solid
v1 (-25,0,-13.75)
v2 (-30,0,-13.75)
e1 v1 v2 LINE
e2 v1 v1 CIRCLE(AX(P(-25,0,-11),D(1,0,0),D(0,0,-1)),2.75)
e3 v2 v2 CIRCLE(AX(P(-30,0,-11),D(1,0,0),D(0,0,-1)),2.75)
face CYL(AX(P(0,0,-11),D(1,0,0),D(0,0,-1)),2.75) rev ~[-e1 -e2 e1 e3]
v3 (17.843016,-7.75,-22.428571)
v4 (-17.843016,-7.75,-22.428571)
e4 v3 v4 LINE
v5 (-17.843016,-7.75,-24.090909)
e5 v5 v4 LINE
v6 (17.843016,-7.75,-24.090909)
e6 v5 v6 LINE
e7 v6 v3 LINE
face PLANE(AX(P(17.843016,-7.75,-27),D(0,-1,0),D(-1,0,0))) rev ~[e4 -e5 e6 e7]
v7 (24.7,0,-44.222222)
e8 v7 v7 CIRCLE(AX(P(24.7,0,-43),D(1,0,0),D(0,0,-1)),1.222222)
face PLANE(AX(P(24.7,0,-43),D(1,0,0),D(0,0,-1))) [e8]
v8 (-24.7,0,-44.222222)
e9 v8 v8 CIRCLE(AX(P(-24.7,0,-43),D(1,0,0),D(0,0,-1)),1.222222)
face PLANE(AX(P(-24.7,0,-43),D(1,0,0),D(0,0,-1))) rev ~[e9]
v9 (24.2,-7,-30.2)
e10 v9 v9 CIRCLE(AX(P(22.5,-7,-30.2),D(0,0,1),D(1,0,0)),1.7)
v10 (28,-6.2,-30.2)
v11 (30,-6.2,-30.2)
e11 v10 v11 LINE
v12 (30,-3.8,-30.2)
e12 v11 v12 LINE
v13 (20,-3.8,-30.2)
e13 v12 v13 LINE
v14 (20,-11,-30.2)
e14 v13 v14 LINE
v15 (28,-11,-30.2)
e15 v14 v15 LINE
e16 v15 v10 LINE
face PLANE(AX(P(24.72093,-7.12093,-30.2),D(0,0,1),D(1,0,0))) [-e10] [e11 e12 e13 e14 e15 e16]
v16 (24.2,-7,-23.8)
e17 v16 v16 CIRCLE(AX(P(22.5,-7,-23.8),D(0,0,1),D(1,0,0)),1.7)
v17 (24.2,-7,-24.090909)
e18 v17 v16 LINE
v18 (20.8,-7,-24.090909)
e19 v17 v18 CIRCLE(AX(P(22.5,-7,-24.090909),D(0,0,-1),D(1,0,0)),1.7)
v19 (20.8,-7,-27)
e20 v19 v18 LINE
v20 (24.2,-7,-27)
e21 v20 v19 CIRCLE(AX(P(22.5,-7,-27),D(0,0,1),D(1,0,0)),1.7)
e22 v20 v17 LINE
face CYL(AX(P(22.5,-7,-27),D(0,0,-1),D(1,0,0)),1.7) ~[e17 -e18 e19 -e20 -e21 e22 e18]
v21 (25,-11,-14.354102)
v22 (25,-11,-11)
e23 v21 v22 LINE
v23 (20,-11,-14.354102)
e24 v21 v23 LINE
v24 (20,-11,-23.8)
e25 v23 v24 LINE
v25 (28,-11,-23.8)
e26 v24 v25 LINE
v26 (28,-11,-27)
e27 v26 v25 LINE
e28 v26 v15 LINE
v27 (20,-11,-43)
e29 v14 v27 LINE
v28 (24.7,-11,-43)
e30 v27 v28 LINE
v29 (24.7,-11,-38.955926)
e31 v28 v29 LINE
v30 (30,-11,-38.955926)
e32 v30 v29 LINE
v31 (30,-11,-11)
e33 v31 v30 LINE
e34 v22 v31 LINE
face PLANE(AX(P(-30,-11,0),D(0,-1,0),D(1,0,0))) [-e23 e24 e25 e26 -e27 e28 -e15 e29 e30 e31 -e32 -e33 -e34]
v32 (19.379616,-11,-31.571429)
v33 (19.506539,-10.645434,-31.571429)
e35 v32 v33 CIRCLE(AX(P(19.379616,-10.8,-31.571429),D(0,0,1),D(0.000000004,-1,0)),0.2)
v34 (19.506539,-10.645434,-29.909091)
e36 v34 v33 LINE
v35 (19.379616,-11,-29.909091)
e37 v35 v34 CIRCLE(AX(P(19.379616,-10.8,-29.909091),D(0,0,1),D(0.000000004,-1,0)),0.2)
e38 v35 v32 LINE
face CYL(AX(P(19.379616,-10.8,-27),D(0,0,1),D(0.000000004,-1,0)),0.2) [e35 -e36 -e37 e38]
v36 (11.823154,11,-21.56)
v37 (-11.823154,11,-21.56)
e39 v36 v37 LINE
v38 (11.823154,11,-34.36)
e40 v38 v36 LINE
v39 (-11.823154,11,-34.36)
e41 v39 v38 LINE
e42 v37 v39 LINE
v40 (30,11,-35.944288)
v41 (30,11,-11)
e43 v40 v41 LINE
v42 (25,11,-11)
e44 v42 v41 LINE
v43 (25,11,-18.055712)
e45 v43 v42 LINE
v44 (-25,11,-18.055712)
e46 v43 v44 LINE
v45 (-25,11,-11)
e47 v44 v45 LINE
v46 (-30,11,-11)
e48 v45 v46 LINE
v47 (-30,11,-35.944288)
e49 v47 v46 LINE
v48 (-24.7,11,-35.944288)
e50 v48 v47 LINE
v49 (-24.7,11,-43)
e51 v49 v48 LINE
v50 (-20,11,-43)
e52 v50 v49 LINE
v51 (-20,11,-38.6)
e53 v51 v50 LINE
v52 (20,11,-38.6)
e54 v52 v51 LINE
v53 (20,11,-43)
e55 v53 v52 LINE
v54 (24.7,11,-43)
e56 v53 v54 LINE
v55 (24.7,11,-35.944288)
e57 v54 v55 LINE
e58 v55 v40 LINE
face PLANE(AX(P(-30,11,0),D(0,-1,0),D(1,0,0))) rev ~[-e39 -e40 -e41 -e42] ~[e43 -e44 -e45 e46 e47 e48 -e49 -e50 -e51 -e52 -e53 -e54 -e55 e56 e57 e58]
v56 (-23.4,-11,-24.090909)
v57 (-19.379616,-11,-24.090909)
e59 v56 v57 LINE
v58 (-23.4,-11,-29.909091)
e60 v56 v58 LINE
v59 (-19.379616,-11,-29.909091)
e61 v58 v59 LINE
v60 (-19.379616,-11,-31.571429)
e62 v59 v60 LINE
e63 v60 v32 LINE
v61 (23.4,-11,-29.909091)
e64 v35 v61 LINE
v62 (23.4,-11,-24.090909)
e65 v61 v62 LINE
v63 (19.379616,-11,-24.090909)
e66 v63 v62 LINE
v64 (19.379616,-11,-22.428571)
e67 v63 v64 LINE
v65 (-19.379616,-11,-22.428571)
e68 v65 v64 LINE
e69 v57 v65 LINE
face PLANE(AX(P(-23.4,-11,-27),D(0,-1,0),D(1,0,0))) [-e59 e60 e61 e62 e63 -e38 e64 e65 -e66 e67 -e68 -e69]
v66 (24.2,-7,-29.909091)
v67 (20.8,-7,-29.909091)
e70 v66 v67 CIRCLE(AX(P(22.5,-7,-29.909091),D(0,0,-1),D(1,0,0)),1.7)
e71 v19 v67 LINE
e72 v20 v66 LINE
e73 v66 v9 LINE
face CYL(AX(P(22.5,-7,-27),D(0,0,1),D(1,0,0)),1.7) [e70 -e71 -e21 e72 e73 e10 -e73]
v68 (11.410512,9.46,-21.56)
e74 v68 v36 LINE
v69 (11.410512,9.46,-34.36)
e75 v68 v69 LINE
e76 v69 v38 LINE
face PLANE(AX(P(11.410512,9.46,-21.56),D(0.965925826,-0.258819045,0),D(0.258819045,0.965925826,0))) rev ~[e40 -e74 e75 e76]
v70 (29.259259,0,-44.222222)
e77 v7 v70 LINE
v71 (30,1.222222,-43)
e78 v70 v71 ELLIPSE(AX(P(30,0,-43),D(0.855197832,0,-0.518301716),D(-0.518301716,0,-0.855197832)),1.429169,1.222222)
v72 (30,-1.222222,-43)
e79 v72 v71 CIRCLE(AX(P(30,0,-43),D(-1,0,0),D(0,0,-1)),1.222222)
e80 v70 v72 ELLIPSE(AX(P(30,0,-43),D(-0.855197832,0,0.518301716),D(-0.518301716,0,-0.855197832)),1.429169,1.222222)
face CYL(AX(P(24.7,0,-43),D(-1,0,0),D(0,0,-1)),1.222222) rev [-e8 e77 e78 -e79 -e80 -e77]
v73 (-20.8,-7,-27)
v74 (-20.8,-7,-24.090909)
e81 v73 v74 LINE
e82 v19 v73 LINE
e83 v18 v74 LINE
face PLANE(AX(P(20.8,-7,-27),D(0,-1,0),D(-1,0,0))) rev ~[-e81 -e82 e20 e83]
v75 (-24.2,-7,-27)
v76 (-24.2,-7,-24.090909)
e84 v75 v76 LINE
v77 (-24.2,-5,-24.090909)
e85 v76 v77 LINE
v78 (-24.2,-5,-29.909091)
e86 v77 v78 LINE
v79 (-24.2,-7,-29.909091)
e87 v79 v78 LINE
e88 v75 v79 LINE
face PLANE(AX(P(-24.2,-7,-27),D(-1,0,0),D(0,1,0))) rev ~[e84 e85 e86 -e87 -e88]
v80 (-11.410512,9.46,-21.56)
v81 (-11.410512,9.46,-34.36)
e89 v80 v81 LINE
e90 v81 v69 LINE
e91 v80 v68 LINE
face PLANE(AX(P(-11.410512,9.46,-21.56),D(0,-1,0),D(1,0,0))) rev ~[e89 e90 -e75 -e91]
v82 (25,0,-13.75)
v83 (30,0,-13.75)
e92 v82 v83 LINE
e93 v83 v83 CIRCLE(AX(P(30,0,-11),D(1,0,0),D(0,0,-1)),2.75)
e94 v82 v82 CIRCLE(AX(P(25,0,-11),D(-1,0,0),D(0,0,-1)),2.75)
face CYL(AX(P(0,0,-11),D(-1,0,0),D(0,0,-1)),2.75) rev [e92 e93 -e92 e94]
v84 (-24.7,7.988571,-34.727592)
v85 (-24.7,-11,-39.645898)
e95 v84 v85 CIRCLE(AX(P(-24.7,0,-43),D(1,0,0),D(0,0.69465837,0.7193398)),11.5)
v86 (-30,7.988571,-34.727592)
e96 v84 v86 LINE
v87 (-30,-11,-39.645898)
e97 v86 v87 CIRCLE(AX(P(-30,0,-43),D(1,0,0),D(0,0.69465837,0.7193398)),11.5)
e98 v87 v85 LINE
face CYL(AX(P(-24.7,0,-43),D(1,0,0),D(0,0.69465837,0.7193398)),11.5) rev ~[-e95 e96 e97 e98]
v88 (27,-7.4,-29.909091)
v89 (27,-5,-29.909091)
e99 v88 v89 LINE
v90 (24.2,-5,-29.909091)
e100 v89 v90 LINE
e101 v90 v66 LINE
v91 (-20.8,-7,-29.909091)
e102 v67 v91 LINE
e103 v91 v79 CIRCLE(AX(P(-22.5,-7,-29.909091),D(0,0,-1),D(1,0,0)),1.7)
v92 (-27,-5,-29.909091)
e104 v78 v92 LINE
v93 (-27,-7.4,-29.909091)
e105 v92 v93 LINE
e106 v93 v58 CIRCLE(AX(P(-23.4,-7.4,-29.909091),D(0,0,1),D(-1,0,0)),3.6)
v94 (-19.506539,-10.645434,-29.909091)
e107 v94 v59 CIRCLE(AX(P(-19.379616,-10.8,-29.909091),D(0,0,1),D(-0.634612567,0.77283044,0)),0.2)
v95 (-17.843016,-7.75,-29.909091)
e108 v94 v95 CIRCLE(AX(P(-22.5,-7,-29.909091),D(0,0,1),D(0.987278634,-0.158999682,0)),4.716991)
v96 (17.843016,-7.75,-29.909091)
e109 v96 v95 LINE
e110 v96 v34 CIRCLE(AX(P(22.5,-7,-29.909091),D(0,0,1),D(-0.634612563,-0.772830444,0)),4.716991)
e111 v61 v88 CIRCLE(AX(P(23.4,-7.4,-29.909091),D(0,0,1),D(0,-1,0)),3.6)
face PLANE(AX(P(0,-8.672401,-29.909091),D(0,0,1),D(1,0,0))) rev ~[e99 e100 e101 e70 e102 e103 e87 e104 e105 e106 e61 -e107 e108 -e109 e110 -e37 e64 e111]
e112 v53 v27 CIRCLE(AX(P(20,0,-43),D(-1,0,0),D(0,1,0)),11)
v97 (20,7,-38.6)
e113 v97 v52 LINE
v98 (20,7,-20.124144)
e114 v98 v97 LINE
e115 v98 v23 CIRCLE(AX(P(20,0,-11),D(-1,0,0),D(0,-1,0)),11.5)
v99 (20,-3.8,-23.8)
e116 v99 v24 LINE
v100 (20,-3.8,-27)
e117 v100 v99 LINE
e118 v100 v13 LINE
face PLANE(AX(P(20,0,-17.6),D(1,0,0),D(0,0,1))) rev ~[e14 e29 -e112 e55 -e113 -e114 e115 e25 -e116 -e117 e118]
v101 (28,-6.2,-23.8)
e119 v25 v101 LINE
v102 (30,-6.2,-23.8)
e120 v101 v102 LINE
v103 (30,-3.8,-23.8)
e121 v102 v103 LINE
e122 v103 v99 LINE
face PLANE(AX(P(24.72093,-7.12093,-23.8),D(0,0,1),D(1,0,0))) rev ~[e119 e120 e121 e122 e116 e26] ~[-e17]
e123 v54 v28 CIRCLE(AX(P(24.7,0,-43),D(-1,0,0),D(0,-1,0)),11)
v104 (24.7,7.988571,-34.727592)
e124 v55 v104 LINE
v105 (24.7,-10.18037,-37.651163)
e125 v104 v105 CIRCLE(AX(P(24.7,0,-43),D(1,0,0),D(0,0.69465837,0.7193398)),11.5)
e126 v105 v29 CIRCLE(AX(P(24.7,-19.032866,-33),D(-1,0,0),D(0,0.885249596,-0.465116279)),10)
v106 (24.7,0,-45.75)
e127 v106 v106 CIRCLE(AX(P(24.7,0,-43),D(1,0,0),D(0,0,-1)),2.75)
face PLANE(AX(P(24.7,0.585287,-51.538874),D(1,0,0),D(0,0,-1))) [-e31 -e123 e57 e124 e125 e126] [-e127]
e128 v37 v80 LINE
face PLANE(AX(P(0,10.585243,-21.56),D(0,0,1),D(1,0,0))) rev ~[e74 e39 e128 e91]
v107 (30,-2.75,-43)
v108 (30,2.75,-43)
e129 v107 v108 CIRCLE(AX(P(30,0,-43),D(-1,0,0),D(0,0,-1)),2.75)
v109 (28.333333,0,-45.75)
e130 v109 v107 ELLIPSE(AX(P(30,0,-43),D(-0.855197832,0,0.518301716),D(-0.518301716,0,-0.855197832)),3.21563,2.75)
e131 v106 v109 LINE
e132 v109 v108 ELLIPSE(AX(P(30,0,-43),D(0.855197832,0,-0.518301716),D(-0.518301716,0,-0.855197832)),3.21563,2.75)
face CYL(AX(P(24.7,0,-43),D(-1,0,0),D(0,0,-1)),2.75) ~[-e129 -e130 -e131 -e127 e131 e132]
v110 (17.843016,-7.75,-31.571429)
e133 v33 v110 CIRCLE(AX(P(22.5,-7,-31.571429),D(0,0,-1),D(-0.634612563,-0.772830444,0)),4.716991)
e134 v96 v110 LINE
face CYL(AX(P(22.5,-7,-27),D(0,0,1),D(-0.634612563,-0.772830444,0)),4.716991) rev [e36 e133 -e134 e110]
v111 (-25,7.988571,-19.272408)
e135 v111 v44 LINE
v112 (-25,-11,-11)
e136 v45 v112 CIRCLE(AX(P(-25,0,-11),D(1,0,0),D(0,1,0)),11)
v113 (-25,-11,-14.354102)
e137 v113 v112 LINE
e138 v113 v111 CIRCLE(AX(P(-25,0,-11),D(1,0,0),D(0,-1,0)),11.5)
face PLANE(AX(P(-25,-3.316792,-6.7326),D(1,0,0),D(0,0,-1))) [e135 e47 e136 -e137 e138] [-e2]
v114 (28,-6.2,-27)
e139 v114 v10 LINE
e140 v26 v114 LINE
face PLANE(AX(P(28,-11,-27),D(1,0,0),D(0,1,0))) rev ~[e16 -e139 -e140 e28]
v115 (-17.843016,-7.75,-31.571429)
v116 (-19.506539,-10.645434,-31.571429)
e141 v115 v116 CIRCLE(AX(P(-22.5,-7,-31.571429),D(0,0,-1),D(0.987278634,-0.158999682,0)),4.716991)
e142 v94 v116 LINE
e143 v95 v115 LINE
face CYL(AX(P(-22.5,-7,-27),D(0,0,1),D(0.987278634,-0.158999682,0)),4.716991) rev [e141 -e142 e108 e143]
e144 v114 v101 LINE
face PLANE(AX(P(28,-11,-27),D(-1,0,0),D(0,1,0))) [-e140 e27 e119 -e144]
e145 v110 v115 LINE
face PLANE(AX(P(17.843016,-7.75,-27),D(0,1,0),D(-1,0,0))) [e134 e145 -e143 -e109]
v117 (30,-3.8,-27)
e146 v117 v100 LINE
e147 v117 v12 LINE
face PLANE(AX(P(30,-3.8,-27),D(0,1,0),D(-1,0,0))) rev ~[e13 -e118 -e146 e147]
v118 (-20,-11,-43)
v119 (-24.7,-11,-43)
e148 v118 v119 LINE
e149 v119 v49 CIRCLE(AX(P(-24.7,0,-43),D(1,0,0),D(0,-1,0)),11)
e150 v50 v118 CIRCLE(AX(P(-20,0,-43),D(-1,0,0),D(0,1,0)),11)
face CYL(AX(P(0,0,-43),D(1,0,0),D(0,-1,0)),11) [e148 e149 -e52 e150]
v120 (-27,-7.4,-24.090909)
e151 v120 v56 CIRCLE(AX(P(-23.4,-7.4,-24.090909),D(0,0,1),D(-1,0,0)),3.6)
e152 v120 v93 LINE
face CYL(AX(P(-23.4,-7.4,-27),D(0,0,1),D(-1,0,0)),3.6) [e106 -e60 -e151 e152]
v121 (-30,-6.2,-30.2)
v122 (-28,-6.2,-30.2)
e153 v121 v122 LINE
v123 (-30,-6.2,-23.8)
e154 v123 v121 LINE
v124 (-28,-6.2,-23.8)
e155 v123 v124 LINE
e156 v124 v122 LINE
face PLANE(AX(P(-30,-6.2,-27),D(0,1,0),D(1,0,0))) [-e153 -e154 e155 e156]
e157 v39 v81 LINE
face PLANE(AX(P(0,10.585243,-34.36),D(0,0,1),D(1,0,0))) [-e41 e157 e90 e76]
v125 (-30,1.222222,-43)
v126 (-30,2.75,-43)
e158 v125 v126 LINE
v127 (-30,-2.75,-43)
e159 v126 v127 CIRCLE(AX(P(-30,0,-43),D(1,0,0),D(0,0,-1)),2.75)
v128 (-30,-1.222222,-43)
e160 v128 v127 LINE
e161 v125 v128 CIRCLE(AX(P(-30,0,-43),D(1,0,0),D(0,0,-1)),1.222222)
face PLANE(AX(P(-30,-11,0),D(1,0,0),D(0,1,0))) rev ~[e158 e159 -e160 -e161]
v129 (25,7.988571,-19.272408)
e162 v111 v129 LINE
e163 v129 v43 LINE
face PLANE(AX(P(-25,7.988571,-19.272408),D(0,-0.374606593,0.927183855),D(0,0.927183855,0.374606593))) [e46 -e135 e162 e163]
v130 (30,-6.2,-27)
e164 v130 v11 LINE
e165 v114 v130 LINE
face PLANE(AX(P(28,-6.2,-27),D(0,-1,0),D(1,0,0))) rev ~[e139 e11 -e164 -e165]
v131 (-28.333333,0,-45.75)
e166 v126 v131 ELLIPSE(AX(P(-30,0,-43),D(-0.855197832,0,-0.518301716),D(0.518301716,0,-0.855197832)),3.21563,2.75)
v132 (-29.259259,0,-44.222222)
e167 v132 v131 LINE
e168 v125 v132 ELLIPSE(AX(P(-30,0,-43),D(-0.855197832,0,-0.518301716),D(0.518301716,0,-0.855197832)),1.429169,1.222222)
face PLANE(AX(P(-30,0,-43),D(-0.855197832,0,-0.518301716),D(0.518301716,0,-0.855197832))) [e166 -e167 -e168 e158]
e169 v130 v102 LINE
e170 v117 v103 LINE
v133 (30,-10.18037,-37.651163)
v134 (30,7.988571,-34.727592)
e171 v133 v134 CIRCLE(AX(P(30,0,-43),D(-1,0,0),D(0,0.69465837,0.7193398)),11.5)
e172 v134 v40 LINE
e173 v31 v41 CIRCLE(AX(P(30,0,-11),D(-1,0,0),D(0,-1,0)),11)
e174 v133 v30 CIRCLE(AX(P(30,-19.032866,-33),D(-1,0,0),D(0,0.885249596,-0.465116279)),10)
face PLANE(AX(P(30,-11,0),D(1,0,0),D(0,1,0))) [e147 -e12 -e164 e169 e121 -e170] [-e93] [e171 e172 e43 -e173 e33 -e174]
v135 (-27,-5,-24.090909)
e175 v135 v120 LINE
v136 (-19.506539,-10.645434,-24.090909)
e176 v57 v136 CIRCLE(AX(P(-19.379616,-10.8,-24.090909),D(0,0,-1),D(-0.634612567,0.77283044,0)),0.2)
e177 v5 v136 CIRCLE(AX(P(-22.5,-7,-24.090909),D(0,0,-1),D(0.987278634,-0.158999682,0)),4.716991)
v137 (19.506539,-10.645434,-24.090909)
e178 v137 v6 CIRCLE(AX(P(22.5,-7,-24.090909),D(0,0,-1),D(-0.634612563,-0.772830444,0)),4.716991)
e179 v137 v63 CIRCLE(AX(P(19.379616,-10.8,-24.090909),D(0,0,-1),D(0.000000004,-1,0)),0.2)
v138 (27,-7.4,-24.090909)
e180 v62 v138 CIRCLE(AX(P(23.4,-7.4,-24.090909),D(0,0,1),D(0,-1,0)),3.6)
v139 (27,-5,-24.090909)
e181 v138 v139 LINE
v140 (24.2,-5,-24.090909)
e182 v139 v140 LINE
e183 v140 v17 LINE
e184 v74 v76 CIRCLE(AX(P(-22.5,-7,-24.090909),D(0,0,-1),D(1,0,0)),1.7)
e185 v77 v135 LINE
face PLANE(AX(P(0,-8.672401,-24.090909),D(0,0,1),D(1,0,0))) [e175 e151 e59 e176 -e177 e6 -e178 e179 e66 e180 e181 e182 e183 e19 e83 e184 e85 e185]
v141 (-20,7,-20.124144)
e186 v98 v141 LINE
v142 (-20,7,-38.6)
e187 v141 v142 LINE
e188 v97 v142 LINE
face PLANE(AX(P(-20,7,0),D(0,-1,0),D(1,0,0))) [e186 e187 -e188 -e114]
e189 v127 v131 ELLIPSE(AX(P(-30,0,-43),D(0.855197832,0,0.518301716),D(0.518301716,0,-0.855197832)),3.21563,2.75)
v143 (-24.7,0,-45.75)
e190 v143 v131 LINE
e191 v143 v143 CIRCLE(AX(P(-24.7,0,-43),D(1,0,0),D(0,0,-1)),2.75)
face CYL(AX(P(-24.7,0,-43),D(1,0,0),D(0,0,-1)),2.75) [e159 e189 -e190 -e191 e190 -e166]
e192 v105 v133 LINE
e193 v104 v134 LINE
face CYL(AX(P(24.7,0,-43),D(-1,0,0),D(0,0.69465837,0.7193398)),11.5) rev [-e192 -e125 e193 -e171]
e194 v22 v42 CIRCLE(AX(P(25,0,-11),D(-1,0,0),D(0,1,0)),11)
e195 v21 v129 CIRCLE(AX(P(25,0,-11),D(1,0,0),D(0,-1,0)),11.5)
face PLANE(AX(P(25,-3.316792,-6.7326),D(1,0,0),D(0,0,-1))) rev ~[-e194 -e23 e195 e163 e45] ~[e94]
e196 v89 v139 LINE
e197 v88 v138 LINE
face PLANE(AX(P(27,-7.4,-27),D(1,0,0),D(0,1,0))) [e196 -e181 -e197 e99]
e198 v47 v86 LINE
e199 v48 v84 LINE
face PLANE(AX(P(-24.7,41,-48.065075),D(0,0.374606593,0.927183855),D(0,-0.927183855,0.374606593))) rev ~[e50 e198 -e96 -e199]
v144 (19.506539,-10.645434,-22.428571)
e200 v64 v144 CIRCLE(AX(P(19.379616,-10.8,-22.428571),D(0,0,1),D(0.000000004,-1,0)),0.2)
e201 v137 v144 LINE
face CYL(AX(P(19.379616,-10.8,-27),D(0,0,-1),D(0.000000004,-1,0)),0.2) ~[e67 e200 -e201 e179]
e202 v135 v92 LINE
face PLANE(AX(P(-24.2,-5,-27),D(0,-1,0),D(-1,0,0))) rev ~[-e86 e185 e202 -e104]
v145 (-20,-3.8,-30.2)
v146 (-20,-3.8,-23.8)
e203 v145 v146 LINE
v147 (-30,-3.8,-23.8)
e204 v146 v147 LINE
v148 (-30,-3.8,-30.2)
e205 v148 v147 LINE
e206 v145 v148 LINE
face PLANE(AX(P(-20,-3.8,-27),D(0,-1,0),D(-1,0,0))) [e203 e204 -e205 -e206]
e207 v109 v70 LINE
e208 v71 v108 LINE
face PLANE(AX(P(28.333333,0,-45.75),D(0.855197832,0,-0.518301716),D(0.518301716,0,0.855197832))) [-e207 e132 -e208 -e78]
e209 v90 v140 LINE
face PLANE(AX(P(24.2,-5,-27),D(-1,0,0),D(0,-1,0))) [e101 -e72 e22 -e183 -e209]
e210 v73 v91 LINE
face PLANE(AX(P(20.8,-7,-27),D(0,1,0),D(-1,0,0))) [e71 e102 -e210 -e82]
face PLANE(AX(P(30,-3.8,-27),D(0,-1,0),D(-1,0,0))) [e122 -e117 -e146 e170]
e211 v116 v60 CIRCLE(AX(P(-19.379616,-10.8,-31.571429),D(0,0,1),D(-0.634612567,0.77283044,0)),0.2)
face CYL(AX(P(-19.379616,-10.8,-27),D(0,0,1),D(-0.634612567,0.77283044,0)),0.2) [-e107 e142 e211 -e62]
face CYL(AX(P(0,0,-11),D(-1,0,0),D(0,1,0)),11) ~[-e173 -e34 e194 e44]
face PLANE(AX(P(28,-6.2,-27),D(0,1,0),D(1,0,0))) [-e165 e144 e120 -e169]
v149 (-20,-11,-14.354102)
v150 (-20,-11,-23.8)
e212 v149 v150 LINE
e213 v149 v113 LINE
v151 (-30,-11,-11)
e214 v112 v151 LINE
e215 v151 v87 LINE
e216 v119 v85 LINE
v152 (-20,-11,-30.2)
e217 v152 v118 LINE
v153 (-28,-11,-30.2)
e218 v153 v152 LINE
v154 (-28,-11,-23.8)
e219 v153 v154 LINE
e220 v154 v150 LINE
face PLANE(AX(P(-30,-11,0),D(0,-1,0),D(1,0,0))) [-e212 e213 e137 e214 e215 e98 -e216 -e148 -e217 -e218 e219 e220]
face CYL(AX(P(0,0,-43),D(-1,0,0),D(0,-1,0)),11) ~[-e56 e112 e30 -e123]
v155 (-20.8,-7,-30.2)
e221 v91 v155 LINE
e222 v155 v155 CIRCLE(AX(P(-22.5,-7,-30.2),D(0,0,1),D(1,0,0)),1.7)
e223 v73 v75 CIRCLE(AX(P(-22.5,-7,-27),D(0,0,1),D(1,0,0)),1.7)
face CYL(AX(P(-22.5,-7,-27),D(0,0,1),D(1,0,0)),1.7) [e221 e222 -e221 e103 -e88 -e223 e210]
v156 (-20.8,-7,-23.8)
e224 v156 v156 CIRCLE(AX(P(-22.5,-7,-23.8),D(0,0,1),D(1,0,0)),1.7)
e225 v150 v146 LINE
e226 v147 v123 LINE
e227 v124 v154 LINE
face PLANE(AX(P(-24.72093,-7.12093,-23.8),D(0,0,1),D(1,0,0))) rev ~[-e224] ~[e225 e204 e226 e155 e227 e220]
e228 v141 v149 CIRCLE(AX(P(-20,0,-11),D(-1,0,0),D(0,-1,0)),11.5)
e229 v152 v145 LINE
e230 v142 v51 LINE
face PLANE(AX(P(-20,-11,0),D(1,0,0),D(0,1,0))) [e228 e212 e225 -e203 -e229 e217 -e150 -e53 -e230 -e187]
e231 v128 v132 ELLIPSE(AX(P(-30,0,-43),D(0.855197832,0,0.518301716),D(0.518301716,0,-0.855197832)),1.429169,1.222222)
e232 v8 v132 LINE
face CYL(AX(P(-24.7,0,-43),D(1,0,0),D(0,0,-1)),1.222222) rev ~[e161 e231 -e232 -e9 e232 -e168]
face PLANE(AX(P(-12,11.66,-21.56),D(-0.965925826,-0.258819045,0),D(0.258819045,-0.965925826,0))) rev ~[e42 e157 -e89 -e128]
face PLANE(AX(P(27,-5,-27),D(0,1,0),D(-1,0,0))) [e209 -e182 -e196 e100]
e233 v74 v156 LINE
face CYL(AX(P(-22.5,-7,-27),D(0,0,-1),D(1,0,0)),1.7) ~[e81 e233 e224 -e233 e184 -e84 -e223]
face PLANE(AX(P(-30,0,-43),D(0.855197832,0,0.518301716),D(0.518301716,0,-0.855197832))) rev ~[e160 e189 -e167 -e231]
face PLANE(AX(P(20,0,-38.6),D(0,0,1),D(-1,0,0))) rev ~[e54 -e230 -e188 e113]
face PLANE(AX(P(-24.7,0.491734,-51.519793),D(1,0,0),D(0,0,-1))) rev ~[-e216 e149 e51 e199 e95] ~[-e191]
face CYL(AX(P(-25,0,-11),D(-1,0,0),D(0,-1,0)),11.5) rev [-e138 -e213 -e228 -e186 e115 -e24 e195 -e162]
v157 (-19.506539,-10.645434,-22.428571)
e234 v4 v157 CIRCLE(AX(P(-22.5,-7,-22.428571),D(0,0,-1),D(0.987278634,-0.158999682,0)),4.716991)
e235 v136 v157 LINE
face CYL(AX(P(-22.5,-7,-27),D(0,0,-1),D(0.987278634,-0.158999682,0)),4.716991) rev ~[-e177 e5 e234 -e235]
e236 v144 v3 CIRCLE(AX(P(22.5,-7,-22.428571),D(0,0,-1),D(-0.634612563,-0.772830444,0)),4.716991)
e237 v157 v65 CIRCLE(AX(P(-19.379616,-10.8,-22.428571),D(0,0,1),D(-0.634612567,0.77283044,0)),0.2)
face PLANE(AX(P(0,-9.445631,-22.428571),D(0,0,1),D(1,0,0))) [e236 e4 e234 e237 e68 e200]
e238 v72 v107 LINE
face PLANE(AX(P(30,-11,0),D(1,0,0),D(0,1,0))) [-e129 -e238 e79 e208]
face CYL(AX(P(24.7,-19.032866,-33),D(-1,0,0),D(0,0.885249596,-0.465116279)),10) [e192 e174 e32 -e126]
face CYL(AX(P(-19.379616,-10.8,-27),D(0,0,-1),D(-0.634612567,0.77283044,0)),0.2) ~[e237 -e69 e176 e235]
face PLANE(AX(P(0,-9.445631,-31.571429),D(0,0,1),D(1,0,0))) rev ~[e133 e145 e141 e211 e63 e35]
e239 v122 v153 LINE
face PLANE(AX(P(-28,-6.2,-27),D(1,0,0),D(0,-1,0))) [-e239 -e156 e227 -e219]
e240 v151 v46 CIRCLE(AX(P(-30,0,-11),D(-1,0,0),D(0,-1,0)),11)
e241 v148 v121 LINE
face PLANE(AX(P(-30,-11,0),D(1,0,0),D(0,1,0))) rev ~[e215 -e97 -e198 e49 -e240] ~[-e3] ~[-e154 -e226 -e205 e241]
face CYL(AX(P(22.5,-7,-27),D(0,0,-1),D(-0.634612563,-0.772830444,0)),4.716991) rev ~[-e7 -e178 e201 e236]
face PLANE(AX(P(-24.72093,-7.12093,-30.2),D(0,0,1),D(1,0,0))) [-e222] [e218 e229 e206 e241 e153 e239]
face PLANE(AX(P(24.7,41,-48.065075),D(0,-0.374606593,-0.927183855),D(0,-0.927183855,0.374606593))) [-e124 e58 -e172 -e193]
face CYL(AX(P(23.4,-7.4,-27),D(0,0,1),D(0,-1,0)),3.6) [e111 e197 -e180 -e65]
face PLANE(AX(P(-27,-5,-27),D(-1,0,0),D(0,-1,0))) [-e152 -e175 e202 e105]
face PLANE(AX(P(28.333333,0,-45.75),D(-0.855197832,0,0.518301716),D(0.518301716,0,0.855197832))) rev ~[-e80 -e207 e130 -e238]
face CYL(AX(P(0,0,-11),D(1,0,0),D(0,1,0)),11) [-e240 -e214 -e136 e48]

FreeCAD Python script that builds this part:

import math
import FreeCAD as App
import Part
import Sketcher
from FreeCAD import Vector
Q = App.Units.Quantity


def add_polygon(sketch, points):
    """Adds a closed chain of lines whose ends are joined by coincident constraints."""
    first, n = sketch.GeometryCount, len(points)
    for a, b in zip(points, points[1:] + points[:1]):
        sketch.addGeometry(Part.LineSegment(App.Vector(*a, 0), App.Vector(*b, 0)), False)
    for i in range(n):
        sketch.addConstraint(Sketcher.Constraint("Coincident", first + i, 2, first + (i + 1) % n, 1))

doc = App.newDocument("Part")
body = doc.addObject("PartDesign::Body", "Body")

# Sketch on XY plane
sketch1 = body.newObject("Sketcher::SketchObject", "Sketch")
sketch1.AttachmentSupport = (doc.getObject("XY_Plane"), [""])
sketch1.MapMode = "FlatFace"
add_polygon(sketch1, [(-30, 11), (-30, -11), (30, -11), (30, 11)])  # lines 0-3
sketch1.addConstraint(Sketcher.Constraint("Vertical", 0))
sketch1.addConstraint(Sketcher.Constraint("Horizontal", 1))
sketch1.addConstraint(Sketcher.Constraint("Vertical", 2))
sketch1.addConstraint(Sketcher.Constraint("Horizontal", 3))
sketch1.addConstraint(Sketcher.Constraint("Symmetric", 0, 2, 2, 2, -1, 1))
sketch1.addConstraint(Sketcher.Constraint("DistanceX", 1, 1, 1, 2, Q("60 mm")))
sketch1.addConstraint(Sketcher.Constraint("DistanceY", 0, 2, 0, 1, Q("22 mm")))
pad1 = body.newObject("PartDesign::Pad", "Pad")
pad1.Profile = sketch1
pad1.Length = 54
pad1.Reversed = True

# Sketch on XY plane
sketch2 = body.newObject("Sketcher::SketchObject", "Sketch001")
sketch2.AttachmentSupport = (doc.getObject("XY_Plane"), [""])
sketch2.MapMode = "FlatFace"
add_polygon(sketch2, [(-20, 7), (-20, -11), (20, -11), (20, 7)])  # lines 0-3
sketch2.addConstraint(Sketcher.Constraint("Vertical", 0))
sketch2.addConstraint(Sketcher.Constraint("Horizontal", 1))
sketch2.addConstraint(Sketcher.Constraint("Vertical", 2))
sketch2.addConstraint(Sketcher.Constraint("Horizontal", 3))
sketch2.addConstraint(Sketcher.Constraint("DistanceX", 1, 1, 1, 2, Q("40 mm")))
sketch2.addConstraint(Sketcher.Constraint("DistanceY", 0, 2, 0, 1, Q("18 mm")))
sketch2.addConstraint(Sketcher.Constraint("DistanceX", 0, 2, -1, 1, Q("20 mm")))
sketch2.addConstraint(Sketcher.Constraint("DistanceY", 0, 2, -1, 1, Q("11 mm")))
pocket1 = body.newObject("PartDesign::Pocket", "Pocket")
pocket1.Profile = sketch2
pocket1.Type = "ThroughAll"
pocket1.Midplane = True

# Sketch on XY plane
sketch3 = body.newObject("Sketcher::SketchObject", "Sketch002")
sketch3.AttachmentSupport = (doc.getObject("XY_Plane"), [""])
sketch3.MapMode = "FlatFace"
sketch3.AttachmentOffset = App.Placement(Vector(0, 0, -21.56), App.Rotation())
add_polygon(sketch3, [(-12, 11.7), (-11.4, 9.5), (11.4, 9.5), (12, 11.7)])  # lines 0-3
sketch3.addConstraint(Sketcher.Constraint("Horizontal", 1))
sketch3.addConstraint(Sketcher.Constraint("Horizontal", 3))
sketch3.addConstraint(Sketcher.Constraint("Equal", 0, 2))
sketch3.addConstraint(Sketcher.Constraint("DistanceX", 3, 2, 3, 1, Q("24 mm")))
sketch3.addConstraint(Sketcher.Constraint("Angle", 0, Q("-75 deg")))
sketch3.addConstraint(Sketcher.Constraint("DistanceX", -1, 1, 2, 2, Q("12 mm")))
sketch3.addConstraint(Sketcher.Constraint("DistanceY", 1, 2, 2, 2, Q("2.2 mm")))
sketch3.addConstraint(Sketcher.Constraint("DistanceY", -1, 1, 0, 2, Q("9.46 mm")))
pocket2 = body.newObject("PartDesign::Pocket", "Pocket001")
pocket2.Profile = sketch3
pocket2.Length = 12.8

# Sketch on XZ plane
sketch4 = body.newObject("Sketcher::SketchObject", "Sketch003")
sketch4.AttachmentSupport = (doc.getObject("XZ_Plane"), [""])
sketch4.MapMode = "FlatFace"
add_polygon(sketch4, [(60, 60), (60, -120), (-60, -120), (-60, 60)])  # lines 0-3
add_polygon(sketch4, [(-30, 0), (-30, -54), (-20, -54), (-20, -39), (20, -39), (20, -54), (30, -54), (30, 0), (20, 0), (20, -18), (-20, -18), (-20, 0)])  # lines 4-15
sketch4.addConstraint(Sketcher.Constraint("Vertical", 0))
sketch4.addConstraint(Sketcher.Constraint("Horizontal", 1))
sketch4.addConstraint(Sketcher.Constraint("Vertical", 2))
sketch4.addConstraint(Sketcher.Constraint("Horizontal", 3))
sketch4.addConstraint(Sketcher.Constraint("Vertical", 4))
sketch4.addConstraint(Sketcher.Constraint("Horizontal", 5))
sketch4.addConstraint(Sketcher.Constraint("Vertical", 6))
sketch4.addConstraint(Sketcher.Constraint("Horizontal", 7))
sketch4.addConstraint(Sketcher.Constraint("Vertical", 8))
sketch4.addConstraint(Sketcher.Constraint("Horizontal", 9))
sketch4.addConstraint(Sketcher.Constraint("Vertical", 10))
sketch4.addConstraint(Sketcher.Constraint("Horizontal", 11))
sketch4.addConstraint(Sketcher.Constraint("Vertical", 12))
sketch4.addConstraint(Sketcher.Constraint("Horizontal", 13))
sketch4.addConstraint(Sketcher.Constraint("Vertical", 14))
sketch4.addConstraint(Sketcher.Constraint("Horizontal", 15))
sketch4.addConstraint(Sketcher.Constraint("Symmetric", 11, 2, 14, 2, -1, 1))
sketch4.addConstraint(Sketcher.Constraint("Symmetric", 5, 2, 8, 2, -2))
sketch4.addConstraint(Sketcher.Constraint("Symmetric", 10, 2, 15, 2, -2))
sketch4.addConstraint(Sketcher.Constraint("Vertical", 8, 2, 11, 2))
sketch4.addConstraint(Sketcher.Constraint("DistanceX", 1, 2, 1, 1, Q("120 mm")))
sketch4.addConstraint(Sketcher.Constraint("DistanceX", 5, 1, 5, 2, Q("10 mm")))
sketch4.addConstraint(Sketcher.Constraint("DistanceX", 7, 1, 7, 2, Q("40 mm")))
sketch4.addConstraint(Sketcher.Constraint("DistanceY", 0, 2, 0, 1, Q("180 mm")))
sketch4.addConstraint(Sketcher.Constraint("DistanceY", 4, 2, 4, 1, Q("54 mm")))
sketch4.addConstraint(Sketcher.Constraint("DistanceY", 6, 1, 6, 2, Q("15.4 mm")))
sketch4.addConstraint(Sketcher.Constraint("DistanceY", 12, 2, 12, 1, Q("17.6 mm")))
sketch4.addConstraint(Sketcher.Constraint("DistanceX", -1, 1, 0, 2, Q("60 mm")))
sketch4.addConstraint(Sketcher.Constraint("DistanceY", 0, 2, -1, 1, Q("120 mm")))
pocket3 = body.newObject("PartDesign::Pocket", "Pocket002")
pocket3.Profile = sketch4
pocket3.Type = "ThroughAll"
pocket3.Midplane = True

# Sketch on YZ plane
sketch5 = body.newObject("Sketcher::SketchObject", "Sketch004")
sketch5.AttachmentSupport = (doc.getObject("YZ_Plane"), [""])
sketch5.MapMode = "FlatFace"
add_polygon(sketch5, [(32, 32), (-32, 32), (-32, -64), (32, -64)])  # lines 0-3
sketch5.addGeometry(Part.LineSegment(Vector(-11, -43, 0), Vector(-11, -11, 0)), False)  # 4
sketch5.addGeometry(Part.ArcOfCircle(Part.Circle(Vector(0, -11, 0), Vector(0, 0, 1), 11), math.radians(0), math.radians(180)), False)  # 5
sketch5.addGeometry(Part.LineSegment(Vector(11, -11, 0), Vector(11, -43, 0)), False)  # 6
sketch5.addGeometry(Part.ArcOfCircle(Part.Circle(Vector(0, -43, 0), Vector(0, 0, 1), 11), math.radians(180), math.radians(360)), False)  # 7
sketch5.addConstraint(Sketcher.Constraint("Tangent", 4, 2, 5, 2))
sketch5.addConstraint(Sketcher.Constraint("Tangent", 5, 1, 6, 1))
sketch5.addConstraint(Sketcher.Constraint("Tangent", 6, 2, 7, 2))
sketch5.addConstraint(Sketcher.Constraint("Tangent", 7, 1, 4, 1))
sketch5.addConstraint(Sketcher.Constraint("Horizontal", 0))
sketch5.addConstraint(Sketcher.Constraint("Vertical", 1))
sketch5.addConstraint(Sketcher.Constraint("Horizontal", 2))
sketch5.addConstraint(Sketcher.Constraint("Vertical", 3))
sketch5.addConstraint(Sketcher.Constraint("Vertical", 4))
sketch5.addConstraint(Sketcher.Constraint("Vertical", 6))
sketch5.addConstraint(Sketcher.Constraint("PointOnObject", 5, 3, -2))
sketch5.addConstraint(Sketcher.Constraint("Radius", 5, Q("11 mm")))
sketch5.addConstraint(Sketcher.Constraint("DistanceX", 0, 2, 0, 1, Q("64 mm")))
sketch5.addConstraint(Sketcher.Constraint("DistanceY", 1, 2, 1, 1, Q("96 mm")))
sketch5.addConstraint(Sketcher.Constraint("DistanceY", 4, 1, 4, 2, Q("32 mm")))
sketch5.addConstraint(Sketcher.Constraint("DistanceY", 5, 3, -1, 1, Q("11 mm")))
sketch5.addConstraint(Sketcher.Constraint("DistanceX", 0, 2, -1, 1, Q("32 mm")))
sketch5.addConstraint(Sketcher.Constraint("DistanceY", -1, 1, 0, 2, Q("32 mm")))
pocket4 = body.newObject("PartDesign::Pocket", "Pocket003")
pocket4.Profile = sketch5
pocket4.Type = "ThroughAll"
pocket4.Midplane = True

# Sketch on YZ plane
sketch6 = body.newObject("Sketcher::SketchObject", "Sketch005")
sketch6.AttachmentSupport = (doc.getObject("YZ_Plane"), [""])
sketch6.MapMode = "FlatFace"
sketch6.AttachmentOffset = App.Placement(Vector(0, 0, -24.7), App.Rotation())
sketch6.addGeometry(Part.LineSegment(Vector(-11.5, -43, 0), Vector(-38, -43, 0)), False)
sketch6.addGeometry(Part.LineSegment(Vector(-38, -43, 0), Vector(-38, -63.2, 0)), False)
sketch6.addGeometry(Part.LineSegment(Vector(-38, -63.2, 0), Vector(41, -63.2, 0)), False)
sketch6.addGeometry(Part.LineSegment(Vector(41, -63.2, 0), Vector(41, -48.1, 0)), False)
sketch6.addGeometry(Part.LineSegment(Vector(41, -48.1, 0), Vector(8, -34.7, 0)), False)
sketch6.addGeometry(Part.ArcOfCircle(Part.Circle(Vector(0, -43, 0), Vector(0, 0, 1), 11.5), math.radians(46), math.radians(180)), False)
sketch6.addGeometry(Part.Circle(Vector(0, -43, 0), Vector(0, 0, 1), 2.8), False)
sketch6.addConstraint(Sketcher.Constraint("Coincident", 0, 2, 1, 1))
sketch6.addConstraint(Sketcher.Constraint("Coincident", 1, 2, 2, 1))
sketch6.addConstraint(Sketcher.Constraint("Coincident", 2, 2, 3, 1))
sketch6.addConstraint(Sketcher.Constraint("Coincident", 3, 2, 4, 1))
sketch6.addConstraint(Sketcher.Constraint("Coincident", 4, 2, 5, 1))
sketch6.addConstraint(Sketcher.Constraint("Coincident", 5, 2, 0, 1))
sketch6.addConstraint(Sketcher.Constraint("Horizontal", 0))
sketch6.addConstraint(Sketcher.Constraint("Vertical", 1))
sketch6.addConstraint(Sketcher.Constraint("Horizontal", 2))
sketch6.addConstraint(Sketcher.Constraint("Vertical", 3))
sketch6.addConstraint(Sketcher.Constraint("Coincident", 6, 3, 5, 3))
sketch6.addConstraint(Sketcher.Constraint("PointOnObject", 5, 3, -2))
sketch6.addConstraint(Sketcher.Constraint("Horizontal", 6, 3, 0, 2))
sketch6.addConstraint(Sketcher.Constraint("Diameter", 6, Q("5.5 mm")))
sketch6.addConstraint(Sketcher.Constraint("Radius", 5, Q("11.5 mm")))
sketch6.addConstraint(Sketcher.Constraint("DistanceX", 2, 1, 2, 2, Q("79 mm")))
sketch6.addConstraint(Sketcher.Constraint("Angle", 4, Q("158 deg")))
sketch6.addConstraint(Sketcher.Constraint("DistanceX", 0, 2, 0, 1, Q("26.5 mm")))
sketch6.addConstraint(Sketcher.Constraint("DistanceY", 1, 2, 1, 1, Q("20.2 mm")))
sketch6.addConstraint(Sketcher.Constraint("DistanceY", 5, 3, -1, 1, Q("43 mm")))
sketch6.addConstraint(Sketcher.Constraint("DistanceY", 3, 1, 3, 2, Q("15.134925 mm")))
pocket5 = body.newObject("PartDesign::Pocket", "Pocket004")
pocket5.Profile = sketch6
pocket5.Length = 15

# Sketch on YZ plane
sketch7 = body.newObject("Sketcher::SketchObject", "Sketch006")
sketch7.AttachmentSupport = (doc.getObject("YZ_Plane"), [""])
sketch7.MapMode = "FlatFace"
sketch7.AttachmentOffset = App.Placement(Vector(0, 0, -24.7), App.Rotation())
sketch7.addGeometry(Part.Circle(Vector(0, -43, 0), Vector(0, 0, 1), 1.2), False)
sketch7.addConstraint(Sketcher.Constraint("PointOnObject", 0, 3, -2))
sketch7.addConstraint(Sketcher.Constraint("DistanceY", 0, 3, -1, 1, Q("43 mm")))
sketch7.addConstraint(Sketcher.Constraint("Diameter", 0, Q("2.444444 mm")))
pocket6 = body.newObject("PartDesign::Pocket", "Pocket005")
pocket6.Profile = sketch7
pocket6.Length = 15

# Sketch on YZ plane
sketch8 = body.newObject("Sketcher::SketchObject", "Sketch007")
sketch8.AttachmentSupport = (doc.getObject("YZ_Plane"), [""])
sketch8.MapMode = "FlatFace"
sketch8.addGeometry(Part.Circle(Vector(0, -11, 0), Vector(0, 0, 1), 2.8), False)
sketch8.addConstraint(Sketcher.Constraint("PointOnObject", 0, 3, -2))
sketch8.addConstraint(Sketcher.Constraint("Diameter", 0, Q("5.5 mm")))
sketch8.addConstraint(Sketcher.Constraint("DistanceY", 0, 3, -1, 1, Q("11 mm")))
pocket7 = body.newObject("PartDesign::Pocket", "Pocket006")
pocket7.Profile = sketch8
pocket7.Type = "ThroughAll"
pocket7.Midplane = True

# Sketch on YZ plane
sketch9 = body.newObject("Sketcher::SketchObject", "Sketch008")
sketch9.AttachmentSupport = (doc.getObject("YZ_Plane"), [""])
sketch9.MapMode = "FlatFace"
sketch9.AttachmentOffset = App.Placement(Vector(0, 0, -25), App.Rotation())
sketch9.addGeometry(Part.LineSegment(Vector(26, 2, 0), Vector(-33, 2, 0)), False)
sketch9.addGeometry(Part.LineSegment(Vector(-33, 2, 0), Vector(-33, -11, 0)), False)
sketch9.addGeometry(Part.LineSegment(Vector(-33, -11, 0), Vector(-12, -11, 0)), False)
sketch9.addGeometry(Part.ArcOfCircle(Part.Circle(Vector(0, -11, 0), Vector(0, 0, 1), 12), math.radians(180), math.radians(314)), False)
sketch9.addGeometry(Part.LineSegment(Vector(8, -19, 0), Vector(26, -12, 0)), False)
sketch9.addGeometry(Part.LineSegment(Vector(26, -12, 0), Vector(26, 2, 0)), False)
sketch9.addConstraint(Sketcher.Constraint("Coincident", 0, 2, 1, 1))
sketch9.addConstraint(Sketcher.Constraint("Coincident", 1, 2, 2, 1))
sketch9.addConstraint(Sketcher.Constraint("Coincident", 2, 2, 3, 1))
sketch9.addConstraint(Sketcher.Constraint("Coincident", 3, 2, 4, 1))
sketch9.addConstraint(Sketcher.Constraint("Coincident", 4, 2, 5, 1))
sketch9.addConstraint(Sketcher.Constraint("Coincident", 5, 2, 0, 1))
sketch9.addConstraint(Sketcher.Constraint("Horizontal", 0))
sketch9.addConstraint(Sketcher.Constraint("Vertical", 1))
sketch9.addConstraint(Sketcher.Constraint("Horizontal", 2))
sketch9.addConstraint(Sketcher.Constraint("Vertical", 5))
sketch9.addConstraint(Sketcher.Constraint("PointOnObject", 3, 3, -2))
sketch9.addConstraint(Sketcher.Constraint("Horizontal", 3, 3, 1, 2))
sketch9.addConstraint(Sketcher.Constraint("Radius", 3, Q("11.5 mm")))
sketch9.addConstraint(Sketcher.Constraint("DistanceX", 0, 2, 0, 1, Q("59 mm")))
sketch9.addConstraint(Sketcher.Constraint("Angle", 4, Q("22 deg")))
sketch9.addConstraint(Sketcher.Constraint("DistanceX", 2, 1, 2, 2, Q("21.5 mm")))
sketch9.addConstraint(Sketcher.Constraint("DistanceY", 1, 2, 1, 1, Q("13.2 mm")))
sketch9.addConstraint(Sketcher.Constraint("DistanceY", 3, 3, -1, 1, Q("11 mm")))
sketch9.addConstraint(Sketcher.Constraint("DistanceY", 5, 1, 5, 2, Q("14.195318 mm")))
pocket8 = body.newObject("PartDesign::Pocket", "Pocket007")
pocket8.Profile = sketch9
pocket8.Length = 50
pocket8.Reversed = True

# Sketch on YZ plane
sketch10 = body.newObject("Sketcher::SketchObject", "Sketch009")
sketch10.AttachmentSupport = (doc.getObject("YZ_Plane"), [""])
sketch10.MapMode = "FlatFace"
sketch10.AttachmentOffset = App.Placement(Vector(0, 0, 24.7), App.Rotation())
sketch10.addGeometry(Part.LineSegment(Vector(-19, -43, 0), Vector(-38, -43, 0)), False)
sketch10.addGeometry(Part.LineSegment(Vector(-38, -43, 0), Vector(-38, -63.2, 0)), False)
sketch10.addGeometry(Part.LineSegment(Vector(-38, -63.2, 0), Vector(41, -63.2, 0)), False)
sketch10.addGeometry(Part.LineSegment(Vector(41, -63.2, 0), Vector(41, -48.1, 0)), False)
sketch10.addGeometry(Part.LineSegment(Vector(41, -48.1, 0), Vector(8, -34.7, 0)), False)
sketch10.addGeometry(Part.ArcOfCircle(Part.Circle(Vector(0, -43, 0), Vector(0, 0, 1), 11.5), math.radians(46), math.radians(152)), False)
sketch10.addGeometry(Part.ArcOfCircle(Part.Circle(Vector(-19, -33, 0), Vector(0, 0, 1), 10), math.radians(-90), math.radians(-28)), False)
sketch10.addGeometry(Part.Circle(Vector(0, -43, 0), Vector(0, 0, 1), 2.8), False)
sketch10.addConstraint(Sketcher.Constraint("Coincident", 0, 2, 1, 1))
sketch10.addConstraint(Sketcher.Constraint("Coincident", 1, 2, 2, 1))
sketch10.addConstraint(Sketcher.Constraint("Coincident", 2, 2, 3, 1))
sketch10.addConstraint(Sketcher.Constraint("Coincident", 3, 2, 4, 1))
sketch10.addConstraint(Sketcher.Constraint("Coincident", 4, 2, 5, 1))
sketch10.addConstraint(Sketcher.Constraint("Tangent", 5, 2, 6, 2))
sketch10.addConstraint(Sketcher.Constraint("Tangent", 6, 1, 0, 1))
sketch10.addConstraint(Sketcher.Constraint("Horizontal", 0))
sketch10.addConstraint(Sketcher.Constraint("Vertical", 1))
sketch10.addConstraint(Sketcher.Constraint("Horizontal", 2))
sketch10.addConstraint(Sketcher.Constraint("Vertical", 3))
sketch10.addConstraint(Sketcher.Constraint("Coincident", 7, 3, 5, 3))
sketch10.addConstraint(Sketcher.Constraint("PointOnObject", 5, 3, -2))
sketch10.addConstraint(Sketcher.Constraint("Horizontal", 7, 3, 0, 2))
sketch10.addConstraint(Sketcher.Constraint("Radius", 6, Q("10 mm")))
sketch10.addConstraint(Sketcher.Constraint("Diameter", 7, Q("5.5 mm")))
sketch10.addConstraint(Sketcher.Constraint("Radius", 5, Q("11.5 mm")))
sketch10.addConstraint(Sketcher.Constraint("DistanceX", 2, 1, 2, 2, Q("79 mm")))
sketch10.addConstraint(Sketcher.Constraint("Angle", 4, Q("158 deg")))
sketch10.addConstraint(Sketcher.Constraint("DistanceY", 1, 2, 1, 1, Q("20.2 mm")))
sketch10.addConstraint(Sketcher.Constraint("DistanceY", 5, 3, -1, 1, Q("43 mm")))
sketch10.addConstraint(Sketcher.Constraint("DistanceX", 0, 2, -1, 1, Q("38 mm")))
sketch10.addConstraint(Sketcher.Constraint("DistanceY", 3, 1, 3, 2, Q("15.134925 mm")))
pocket9 = body.newObject("PartDesign::Pocket", "Pocket008")
pocket9.Profile = sketch10
pocket9.Length = 15
pocket9.Reversed = True

# Sketch on YZ plane
sketch11 = body.newObject("Sketcher::SketchObject", "Sketch010")
sketch11.AttachmentSupport = (doc.getObject("YZ_Plane"), [""])
sketch11.MapMode = "FlatFace"
sketch11.AttachmentOffset = App.Placement(Vector(0, 0, 24.7), App.Rotation())
sketch11.addGeometry(Part.Circle(Vector(0, -43, 0), Vector(0, 0, 1), 1.2), False)
sketch11.addConstraint(Sketcher.Constraint("PointOnObject", 0, 3, -2))
sketch11.addConstraint(Sketcher.Constraint("DistanceY", 0, 3, -1, 1, Q("43 mm")))
sketch11.addConstraint(Sketcher.Constraint("Diameter", 0, Q("2.444444 mm")))
pocket10 = body.newObject("PartDesign::Pocket", "Pocket009")
pocket10.Profile = sketch11
pocket10.Length = 15
pocket10.Reversed = True

# Sketch on XY plane
sketch12 = body.newObject("Sketcher::SketchObject", "Sketch011")
sketch12.AttachmentSupport = (doc.getObject("XY_Plane"), [""])
sketch12.MapMode = "FlatFace"
sketch12.AttachmentOffset = App.Placement(Vector(0, 0, -27), App.Rotation())
add_polygon(sketch12, [(-30, -6.2), (-28, -6.2), (-28, -11), (-20, -11), (-20, -3.8), (-30, -3.8)])  # lines 0-5
sketch12.addGeometry(Part.Circle(Vector(-22.5, -7, 0), Vector(0, 0, 1), 1.7), False)  # 6
sketch12.addConstraint(Sketcher.Constraint("Horizontal", 0))
sketch12.addConstraint(Sketcher.Constraint("Vertical", 1))
sketch12.addConstraint(Sketcher.Constraint("Horizontal", 2))
sketch12.addConstraint(Sketcher.Constraint("Vertical", 3))
sketch12.addConstraint(Sketcher.Constraint("Horizontal", 4))
sketch12.addConstraint(Sketcher.Constraint("Vertical", 5))
sketch12.addConstraint(Sketcher.Constraint("Diameter", 6, Q("3.4 mm")))
sketch12.addConstraint(Sketcher.Constraint("DistanceX", 0, 1, 0, 2, Q("2 mm")))
sketch12.addConstraint(Sketcher.Constraint("DistanceX", 2, 1, 2, 2, Q("8 mm")))
sketch12.addConstraint(Sketcher.Constraint("DistanceY", 1, 2, 1, 1, Q("4.8 mm")))
sketch12.addConstraint(Sketcher.Constraint("DistanceY", 3, 1, 3, 2, Q("7.2 mm")))
sketch12.addConstraint(Sketcher.Constraint("DistanceY", 6, 3, -1, 1, Q("7 mm")))
sketch12.addConstraint(Sketcher.Constraint("DistanceX", 0, 2, -1, 1, Q("28 mm")))
sketch12.addConstraint(Sketcher.Constraint("DistanceY", 1, 2, -1, 1, Q("11 mm")))
sketch12.addConstraint(Sketcher.Constraint("DistanceX", 6, 3, -1, 1, Q("22.5 mm")))
pocket11 = body.newObject("PartDesign::Pocket", "Pocket010")
pocket11.Profile = sketch12
pocket11.Type = "TwoLengths"
pocket11.Length = 3.2
pocket11.Length2 = 3.2
pocket11.Reversed = True

# Sketch on XY plane
sketch13 = body.newObject("Sketcher::SketchObject", "Sketch012")
sketch13.AttachmentSupport = (doc.getObject("XY_Plane"), [""])
sketch13.MapMode = "FlatFace"
sketch13.AttachmentOffset = App.Placement(Vector(0, 0, -27), App.Rotation())
add_polygon(sketch13, [(20, -11), (28, -11), (28, -6.2), (30, -6.2), (30, -3.8), (20, -3.8)])  # lines 0-5
sketch13.addGeometry(Part.Circle(Vector(22.5, -7, 0), Vector(0, 0, 1), 1.7), False)  # 6
sketch13.addConstraint(Sketcher.Constraint("Horizontal", 0))
sketch13.addConstraint(Sketcher.Constraint("Vertical", 1))
sketch13.addConstraint(Sketcher.Constraint("Horizontal", 2))
sketch13.addConstraint(Sketcher.Constraint("Vertical", 3))
sketch13.addConstraint(Sketcher.Constraint("Horizontal", 4))
sketch13.addConstraint(Sketcher.Constraint("Vertical", 5))
sketch13.addConstraint(Sketcher.Constraint("Diameter", 6, Q("3.4 mm")))
sketch13.addConstraint(Sketcher.Constraint("DistanceX", 0, 1, 0, 2, Q("8 mm")))
sketch13.addConstraint(Sketcher.Constraint("DistanceX", 2, 1, 2, 2, Q("2 mm")))
sketch13.addConstraint(Sketcher.Constraint("DistanceY", 1, 1, 1, 2, Q("4.8 mm")))
sketch13.addConstraint(Sketcher.Constraint("DistanceY", 3, 1, 3, 2, Q("2.4 mm")))
sketch13.addConstraint(Sketcher.Constraint("DistanceY", 6, 3, -1, 1, Q("7 mm")))
sketch13.addConstraint(Sketcher.Constraint("DistanceX", -1, 1, 0, 2, Q("28 mm")))
sketch13.addConstraint(Sketcher.Constraint("DistanceY", 0, 2, -1, 1, Q("11 mm")))
sketch13.addConstraint(Sketcher.Constraint("DistanceX", -1, 1, 6, 3, Q("22.5 mm")))
pocket12 = body.newObject("PartDesign::Pocket", "Pocket011")
pocket12.Profile = sketch13
pocket12.Type = "TwoLengths"
pocket12.Length = 3.2
pocket12.Length2 = 3.2
pocket12.Reversed = True

# Sketch on XZ plane
sketch14 = body.newObject("Sketcher::SketchObject", "Sketch013")
sketch14.AttachmentSupport = (doc.getObject("XZ_Plane"), [""])
sketch14.MapMode = "FlatFace"
add_polygon(sketch14, [(28.3, -45.8), (30, -43), (30, -45.8)])  # lines 0-2
sketch14.addConstraint(Sketcher.Constraint("Vertical", 1))
sketch14.addConstraint(Sketcher.Constraint("Horizontal", 2))
sketch14.addConstraint(Sketcher.Constraint("DistanceX", -1, 1, 0, 2, Q("30 mm")))
sketch14.addConstraint(Sketcher.Constraint("DistanceY", 0, 2, -1, 1, Q("43 mm")))
sketch14.addConstraint(Sketcher.Constraint("DistanceY", 1, 2, 1, 1, Q("2.75 mm")))
sketch14.addConstraint(Sketcher.Constraint("Distance", 0, Q("3.21563 mm")))
pocket13 = body.newObject("PartDesign::Pocket", "Pocket012")
pocket13.Profile = sketch14
pocket13.Type = "ThroughAll"
pocket13.Midplane = True

# Sketch on XZ plane
sketch15 = body.newObject("Sketcher::SketchObject", "Sketch014")
sketch15.AttachmentSupport = (doc.getObject("XZ_Plane"), [""])
sketch15.MapMode = "FlatFace"
add_polygon(sketch15, [(-30, -45.8), (-30, -43), (-28.3, -45.8)])  # lines 0-2
sketch15.addConstraint(Sketcher.Constraint("Vertical", 0))
sketch15.addConstraint(Sketcher.Constraint("Horizontal", 2))
sketch15.addConstraint(Sketcher.Constraint("DistanceX", 0, 2, -1, 1, Q("30 mm")))
sketch15.addConstraint(Sketcher.Constraint("DistanceY", 0, 2, -1, 1, Q("43 mm")))
sketch15.addConstraint(Sketcher.Constraint("DistanceY", 0, 1, 0, 2, Q("2.75 mm")))
sketch15.addConstraint(Sketcher.Constraint("Distance", 1, Q("3.21563 mm")))
pocket14 = body.newObject("PartDesign::Pocket", "Pocket013")
pocket14.Profile = sketch15
pocket14.Type = "ThroughAll"
pocket14.Midplane = True

# Sketch on XY plane
sketch16 = body.newObject("Sketcher::SketchObject", "Sketch015")
sketch16.AttachmentSupport = (doc.getObject("XY_Plane"), [""])
sketch16.MapMode = "FlatFace"
sketch16.AttachmentOffset = App.Placement(Vector(0, 0, -27), App.Rotation())
sketch16.addGeometry(Part.LineSegment(Vector(-23.4, -11, 0), Vector(23.4, -11, 0)), False)
sketch16.addGeometry(Part.ArcOfCircle(Part.Circle(Vector(23.4, -7.4, 0), Vector(0, 0, 1), 3.6), math.radians(-90), math.radians(0)), False)
sketch16.addGeometry(Part.LineSegment(Vector(27, -7.4, 0), Vector(27, -5, 0)), False)
sketch16.addGeometry(Part.LineSegment(Vector(27, -5, 0), Vector(24.2, -5, 0)), False)
sketch16.addGeometry(Part.LineSegment(Vector(24.2, -5, 0), Vector(24.2, -7, 0)), False)
sketch16.addGeometry(Part.ArcOfCircle(Part.Circle(Vector(22.5, -7, 0), Vector(0, 0, 1), 1.7), math.radians(180), math.radians(360)), False)
sketch16.addGeometry(Part.LineSegment(Vector(20.8, -7, 0), Vector(-20.8, -7, 0)), False)
sketch16.addGeometry(Part.ArcOfCircle(Part.Circle(Vector(-22.5, -7, 0), Vector(0, 0, 1), 1.7), math.radians(180), math.radians(360)), False)
sketch16.addGeometry(Part.LineSegment(Vector(-24.2, -7, 0), Vector(-24.2, -5, 0)), False)
sketch16.addGeometry(Part.LineSegment(Vector(-24.2, -5, 0), Vector(-27, -5, 0)), False)
sketch16.addGeometry(Part.LineSegment(Vector(-27, -5, 0), Vector(-27, -7.4, 0)), False)
sketch16.addGeometry(Part.ArcOfCircle(Part.Circle(Vector(-23.4, -7.4, 0), Vector(0, 0, 1), 3.6), math.radians(-180), math.radians(-90)), False)
sketch16.addConstraint(Sketcher.Constraint("Tangent", 0, 2, 1, 1))
sketch16.addConstraint(Sketcher.Constraint("Tangent", 1, 2, 2, 1))
sketch16.addConstraint(Sketcher.Constraint("Coincident", 2, 2, 3, 1))
sketch16.addConstraint(Sketcher.Constraint("Coincident", 3, 2, 4, 1))
sketch16.addConstraint(Sketcher.Constraint("Tangent", 4, 2, 5, 2))
sketch16.addConstraint(Sketcher.Constraint("Coincident", 5, 1, 6, 1))
sketch16.addConstraint(Sketcher.Constraint("Coincident", 6, 2, 7, 2))
sketch16.addConstraint(Sketcher.Constraint("Tangent", 7, 1, 8, 1))
sketch16.addConstraint(Sketcher.Constraint("Coincident", 8, 2, 9, 1))
sketch16.addConstraint(Sketcher.Constraint("Coincident", 9, 2, 10, 1))
sketch16.addConstraint(Sketcher.Constraint("Tangent", 10, 2, 11, 1))
sketch16.addConstraint(Sketcher.Constraint("Tangent", 11, 2, 0, 1))
sketch16.addConstraint(Sketcher.Constraint("Horizontal", 0))
sketch16.addConstraint(Sketcher.Constraint("Vertical", 2))
sketch16.addConstraint(Sketcher.Constraint("Horizontal", 3))
sketch16.addConstraint(Sketcher.Constraint("Vertical", 4))
sketch16.addConstraint(Sketcher.Constraint("Horizontal", 6))
sketch16.addConstraint(Sketcher.Constraint("Vertical", 8))
sketch16.addConstraint(Sketcher.Constraint("Horizontal", 9))
sketch16.addConstraint(Sketcher.Constraint("Vertical", 10))
sketch16.addConstraint(Sketcher.Constraint("Equal", 5, 7))
sketch16.addConstraint(Sketcher.Constraint("Equal", 1, 11))
sketch16.addConstraint(Sketcher.Constraint("Symmetric", 5, 3, 7, 3, -2))
sketch16.addConstraint(Sketcher.Constraint("Symmetric", 2, 2, 9, 2, -2))
sketch16.addConstraint(Sketcher.Constraint("Horizontal", 4, 2, 5, 1))
sketch16.addConstraint(Sketcher.Constraint("Radius", 1, Q("3.6 mm")))
sketch16.addConstraint(Sketcher.Constraint("Radius", 5, Q("1.7 mm")))
sketch16.addConstraint(Sketcher.Constraint("DistanceY", 4, 2, 4, 1, Q("2 mm")))
sketch16.addConstraint(Sketcher.Constraint("DistanceX", 0, 1, 0, 2, Q("46.8 mm")))
sketch16.addConstraint(Sketcher.Constraint("DistanceX", 3, 2, 3, 1, Q("2.8 mm")))
sketch16.addConstraint(Sketcher.Constraint("DistanceY", 2, 1, 2, 2, Q("2.4 mm")))
sketch16.addConstraint(Sketcher.Constraint("DistanceY", 5, 3, -1, 1, Q("7 mm")))
pad2 = body.newObject("PartDesign::Pad", "Pad001")
pad2.Profile = sketch16
pad2.Type = "TwoLengths"
pad2.Length = 2.909091
pad2.Length2 = 2.909091

# Sketch on XY plane
sketch17 = body.newObject("Sketcher::SketchObject", "Sketch016")
sketch17.AttachmentSupport = (doc.getObject("XY_Plane"), [""])
sketch17.MapMode = "FlatFace"
sketch17.AttachmentOffset = App.Placement(Vector(0, 0, -27), App.Rotation())
sketch17.addGeometry(Part.LineSegment(Vector(-19.38, -11, 0), Vector(19.38, -11, 0)), False)
sketch17.addGeometry(Part.ArcOfCircle(Part.Circle(Vector(19.38, -10.8, 0), Vector(0, 0, 1), 0.2), math.radians(-90), math.radians(51)), False)
sketch17.addGeometry(Part.ArcOfCircle(Part.Circle(Vector(22.5, -7, 0), Vector(0, 0, 1), 4.72), math.radians(-171), math.radians(-129)), False)
sketch17.addGeometry(Part.LineSegment(Vector(17.84, -7.75, 0), Vector(-17.84, -7.75, 0)), False)
sketch17.addGeometry(Part.ArcOfCircle(Part.Circle(Vector(-22.5, -7, 0), Vector(0, 0, 1), 4.72), math.radians(-51), math.radians(-9)), False)
sketch17.addGeometry(Part.ArcOfCircle(Part.Circle(Vector(-19.38, -10.8, 0), Vector(0, 0, 1), 0.2), math.radians(129), math.radians(270)), False)
sketch17.addConstraint(Sketcher.Constraint("Tangent", 0, 2, 1, 1))
sketch17.addConstraint(Sketcher.Constraint("Tangent", 1, 2, 2, 2))
sketch17.addConstraint(Sketcher.Constraint("Coincident", 2, 1, 3, 1))
sketch17.addConstraint(Sketcher.Constraint("Coincident", 3, 2, 4, 2))
sketch17.addConstraint(Sketcher.Constraint("Tangent", 4, 1, 5, 1))
sketch17.addConstraint(Sketcher.Constraint("Tangent", 5, 2, 0, 1))
sketch17.addConstraint(Sketcher.Constraint("Horizontal", 0))
sketch17.addConstraint(Sketcher.Constraint("Horizontal", 3))
sketch17.addConstraint(Sketcher.Constraint("Equal", 2, 4))
sketch17.addConstraint(Sketcher.Constraint("Equal", 1, 5))
sketch17.addConstraint(Sketcher.Constraint("Symmetric", 2, 3, 4, 3, -2))
sketch17.addConstraint(Sketcher.Constraint("Radius", 1, Q("0.2 mm")))
sketch17.addConstraint(Sketcher.Constraint("DistanceY", 2, 3, -1, 1, Q("7 mm")))
sketch17.addConstraint(Sketcher.Constraint("DistanceY", 0, 2, -1, 1, Q("11 mm")))
sketch17.addConstraint(Sketcher.Constraint("DistanceX", 4, 3, 2, 3, Q("45 mm")))
sketch17.addConstraint(Sketcher.Constraint("DistanceY", 2, 1, -1, 1, Q("7.75 mm")))
sketch17.addConstraint(Sketcher.Constraint("Radius", 2, Q("4.716991 mm")))
pad3 = body.newObject("PartDesign::Pad", "Pad002")
pad3.Profile = sketch17
pad3.Type = "TwoLengths"
pad3.Length = 4.571429
pad3.Length2 = 4.571429

doc.recompute()
